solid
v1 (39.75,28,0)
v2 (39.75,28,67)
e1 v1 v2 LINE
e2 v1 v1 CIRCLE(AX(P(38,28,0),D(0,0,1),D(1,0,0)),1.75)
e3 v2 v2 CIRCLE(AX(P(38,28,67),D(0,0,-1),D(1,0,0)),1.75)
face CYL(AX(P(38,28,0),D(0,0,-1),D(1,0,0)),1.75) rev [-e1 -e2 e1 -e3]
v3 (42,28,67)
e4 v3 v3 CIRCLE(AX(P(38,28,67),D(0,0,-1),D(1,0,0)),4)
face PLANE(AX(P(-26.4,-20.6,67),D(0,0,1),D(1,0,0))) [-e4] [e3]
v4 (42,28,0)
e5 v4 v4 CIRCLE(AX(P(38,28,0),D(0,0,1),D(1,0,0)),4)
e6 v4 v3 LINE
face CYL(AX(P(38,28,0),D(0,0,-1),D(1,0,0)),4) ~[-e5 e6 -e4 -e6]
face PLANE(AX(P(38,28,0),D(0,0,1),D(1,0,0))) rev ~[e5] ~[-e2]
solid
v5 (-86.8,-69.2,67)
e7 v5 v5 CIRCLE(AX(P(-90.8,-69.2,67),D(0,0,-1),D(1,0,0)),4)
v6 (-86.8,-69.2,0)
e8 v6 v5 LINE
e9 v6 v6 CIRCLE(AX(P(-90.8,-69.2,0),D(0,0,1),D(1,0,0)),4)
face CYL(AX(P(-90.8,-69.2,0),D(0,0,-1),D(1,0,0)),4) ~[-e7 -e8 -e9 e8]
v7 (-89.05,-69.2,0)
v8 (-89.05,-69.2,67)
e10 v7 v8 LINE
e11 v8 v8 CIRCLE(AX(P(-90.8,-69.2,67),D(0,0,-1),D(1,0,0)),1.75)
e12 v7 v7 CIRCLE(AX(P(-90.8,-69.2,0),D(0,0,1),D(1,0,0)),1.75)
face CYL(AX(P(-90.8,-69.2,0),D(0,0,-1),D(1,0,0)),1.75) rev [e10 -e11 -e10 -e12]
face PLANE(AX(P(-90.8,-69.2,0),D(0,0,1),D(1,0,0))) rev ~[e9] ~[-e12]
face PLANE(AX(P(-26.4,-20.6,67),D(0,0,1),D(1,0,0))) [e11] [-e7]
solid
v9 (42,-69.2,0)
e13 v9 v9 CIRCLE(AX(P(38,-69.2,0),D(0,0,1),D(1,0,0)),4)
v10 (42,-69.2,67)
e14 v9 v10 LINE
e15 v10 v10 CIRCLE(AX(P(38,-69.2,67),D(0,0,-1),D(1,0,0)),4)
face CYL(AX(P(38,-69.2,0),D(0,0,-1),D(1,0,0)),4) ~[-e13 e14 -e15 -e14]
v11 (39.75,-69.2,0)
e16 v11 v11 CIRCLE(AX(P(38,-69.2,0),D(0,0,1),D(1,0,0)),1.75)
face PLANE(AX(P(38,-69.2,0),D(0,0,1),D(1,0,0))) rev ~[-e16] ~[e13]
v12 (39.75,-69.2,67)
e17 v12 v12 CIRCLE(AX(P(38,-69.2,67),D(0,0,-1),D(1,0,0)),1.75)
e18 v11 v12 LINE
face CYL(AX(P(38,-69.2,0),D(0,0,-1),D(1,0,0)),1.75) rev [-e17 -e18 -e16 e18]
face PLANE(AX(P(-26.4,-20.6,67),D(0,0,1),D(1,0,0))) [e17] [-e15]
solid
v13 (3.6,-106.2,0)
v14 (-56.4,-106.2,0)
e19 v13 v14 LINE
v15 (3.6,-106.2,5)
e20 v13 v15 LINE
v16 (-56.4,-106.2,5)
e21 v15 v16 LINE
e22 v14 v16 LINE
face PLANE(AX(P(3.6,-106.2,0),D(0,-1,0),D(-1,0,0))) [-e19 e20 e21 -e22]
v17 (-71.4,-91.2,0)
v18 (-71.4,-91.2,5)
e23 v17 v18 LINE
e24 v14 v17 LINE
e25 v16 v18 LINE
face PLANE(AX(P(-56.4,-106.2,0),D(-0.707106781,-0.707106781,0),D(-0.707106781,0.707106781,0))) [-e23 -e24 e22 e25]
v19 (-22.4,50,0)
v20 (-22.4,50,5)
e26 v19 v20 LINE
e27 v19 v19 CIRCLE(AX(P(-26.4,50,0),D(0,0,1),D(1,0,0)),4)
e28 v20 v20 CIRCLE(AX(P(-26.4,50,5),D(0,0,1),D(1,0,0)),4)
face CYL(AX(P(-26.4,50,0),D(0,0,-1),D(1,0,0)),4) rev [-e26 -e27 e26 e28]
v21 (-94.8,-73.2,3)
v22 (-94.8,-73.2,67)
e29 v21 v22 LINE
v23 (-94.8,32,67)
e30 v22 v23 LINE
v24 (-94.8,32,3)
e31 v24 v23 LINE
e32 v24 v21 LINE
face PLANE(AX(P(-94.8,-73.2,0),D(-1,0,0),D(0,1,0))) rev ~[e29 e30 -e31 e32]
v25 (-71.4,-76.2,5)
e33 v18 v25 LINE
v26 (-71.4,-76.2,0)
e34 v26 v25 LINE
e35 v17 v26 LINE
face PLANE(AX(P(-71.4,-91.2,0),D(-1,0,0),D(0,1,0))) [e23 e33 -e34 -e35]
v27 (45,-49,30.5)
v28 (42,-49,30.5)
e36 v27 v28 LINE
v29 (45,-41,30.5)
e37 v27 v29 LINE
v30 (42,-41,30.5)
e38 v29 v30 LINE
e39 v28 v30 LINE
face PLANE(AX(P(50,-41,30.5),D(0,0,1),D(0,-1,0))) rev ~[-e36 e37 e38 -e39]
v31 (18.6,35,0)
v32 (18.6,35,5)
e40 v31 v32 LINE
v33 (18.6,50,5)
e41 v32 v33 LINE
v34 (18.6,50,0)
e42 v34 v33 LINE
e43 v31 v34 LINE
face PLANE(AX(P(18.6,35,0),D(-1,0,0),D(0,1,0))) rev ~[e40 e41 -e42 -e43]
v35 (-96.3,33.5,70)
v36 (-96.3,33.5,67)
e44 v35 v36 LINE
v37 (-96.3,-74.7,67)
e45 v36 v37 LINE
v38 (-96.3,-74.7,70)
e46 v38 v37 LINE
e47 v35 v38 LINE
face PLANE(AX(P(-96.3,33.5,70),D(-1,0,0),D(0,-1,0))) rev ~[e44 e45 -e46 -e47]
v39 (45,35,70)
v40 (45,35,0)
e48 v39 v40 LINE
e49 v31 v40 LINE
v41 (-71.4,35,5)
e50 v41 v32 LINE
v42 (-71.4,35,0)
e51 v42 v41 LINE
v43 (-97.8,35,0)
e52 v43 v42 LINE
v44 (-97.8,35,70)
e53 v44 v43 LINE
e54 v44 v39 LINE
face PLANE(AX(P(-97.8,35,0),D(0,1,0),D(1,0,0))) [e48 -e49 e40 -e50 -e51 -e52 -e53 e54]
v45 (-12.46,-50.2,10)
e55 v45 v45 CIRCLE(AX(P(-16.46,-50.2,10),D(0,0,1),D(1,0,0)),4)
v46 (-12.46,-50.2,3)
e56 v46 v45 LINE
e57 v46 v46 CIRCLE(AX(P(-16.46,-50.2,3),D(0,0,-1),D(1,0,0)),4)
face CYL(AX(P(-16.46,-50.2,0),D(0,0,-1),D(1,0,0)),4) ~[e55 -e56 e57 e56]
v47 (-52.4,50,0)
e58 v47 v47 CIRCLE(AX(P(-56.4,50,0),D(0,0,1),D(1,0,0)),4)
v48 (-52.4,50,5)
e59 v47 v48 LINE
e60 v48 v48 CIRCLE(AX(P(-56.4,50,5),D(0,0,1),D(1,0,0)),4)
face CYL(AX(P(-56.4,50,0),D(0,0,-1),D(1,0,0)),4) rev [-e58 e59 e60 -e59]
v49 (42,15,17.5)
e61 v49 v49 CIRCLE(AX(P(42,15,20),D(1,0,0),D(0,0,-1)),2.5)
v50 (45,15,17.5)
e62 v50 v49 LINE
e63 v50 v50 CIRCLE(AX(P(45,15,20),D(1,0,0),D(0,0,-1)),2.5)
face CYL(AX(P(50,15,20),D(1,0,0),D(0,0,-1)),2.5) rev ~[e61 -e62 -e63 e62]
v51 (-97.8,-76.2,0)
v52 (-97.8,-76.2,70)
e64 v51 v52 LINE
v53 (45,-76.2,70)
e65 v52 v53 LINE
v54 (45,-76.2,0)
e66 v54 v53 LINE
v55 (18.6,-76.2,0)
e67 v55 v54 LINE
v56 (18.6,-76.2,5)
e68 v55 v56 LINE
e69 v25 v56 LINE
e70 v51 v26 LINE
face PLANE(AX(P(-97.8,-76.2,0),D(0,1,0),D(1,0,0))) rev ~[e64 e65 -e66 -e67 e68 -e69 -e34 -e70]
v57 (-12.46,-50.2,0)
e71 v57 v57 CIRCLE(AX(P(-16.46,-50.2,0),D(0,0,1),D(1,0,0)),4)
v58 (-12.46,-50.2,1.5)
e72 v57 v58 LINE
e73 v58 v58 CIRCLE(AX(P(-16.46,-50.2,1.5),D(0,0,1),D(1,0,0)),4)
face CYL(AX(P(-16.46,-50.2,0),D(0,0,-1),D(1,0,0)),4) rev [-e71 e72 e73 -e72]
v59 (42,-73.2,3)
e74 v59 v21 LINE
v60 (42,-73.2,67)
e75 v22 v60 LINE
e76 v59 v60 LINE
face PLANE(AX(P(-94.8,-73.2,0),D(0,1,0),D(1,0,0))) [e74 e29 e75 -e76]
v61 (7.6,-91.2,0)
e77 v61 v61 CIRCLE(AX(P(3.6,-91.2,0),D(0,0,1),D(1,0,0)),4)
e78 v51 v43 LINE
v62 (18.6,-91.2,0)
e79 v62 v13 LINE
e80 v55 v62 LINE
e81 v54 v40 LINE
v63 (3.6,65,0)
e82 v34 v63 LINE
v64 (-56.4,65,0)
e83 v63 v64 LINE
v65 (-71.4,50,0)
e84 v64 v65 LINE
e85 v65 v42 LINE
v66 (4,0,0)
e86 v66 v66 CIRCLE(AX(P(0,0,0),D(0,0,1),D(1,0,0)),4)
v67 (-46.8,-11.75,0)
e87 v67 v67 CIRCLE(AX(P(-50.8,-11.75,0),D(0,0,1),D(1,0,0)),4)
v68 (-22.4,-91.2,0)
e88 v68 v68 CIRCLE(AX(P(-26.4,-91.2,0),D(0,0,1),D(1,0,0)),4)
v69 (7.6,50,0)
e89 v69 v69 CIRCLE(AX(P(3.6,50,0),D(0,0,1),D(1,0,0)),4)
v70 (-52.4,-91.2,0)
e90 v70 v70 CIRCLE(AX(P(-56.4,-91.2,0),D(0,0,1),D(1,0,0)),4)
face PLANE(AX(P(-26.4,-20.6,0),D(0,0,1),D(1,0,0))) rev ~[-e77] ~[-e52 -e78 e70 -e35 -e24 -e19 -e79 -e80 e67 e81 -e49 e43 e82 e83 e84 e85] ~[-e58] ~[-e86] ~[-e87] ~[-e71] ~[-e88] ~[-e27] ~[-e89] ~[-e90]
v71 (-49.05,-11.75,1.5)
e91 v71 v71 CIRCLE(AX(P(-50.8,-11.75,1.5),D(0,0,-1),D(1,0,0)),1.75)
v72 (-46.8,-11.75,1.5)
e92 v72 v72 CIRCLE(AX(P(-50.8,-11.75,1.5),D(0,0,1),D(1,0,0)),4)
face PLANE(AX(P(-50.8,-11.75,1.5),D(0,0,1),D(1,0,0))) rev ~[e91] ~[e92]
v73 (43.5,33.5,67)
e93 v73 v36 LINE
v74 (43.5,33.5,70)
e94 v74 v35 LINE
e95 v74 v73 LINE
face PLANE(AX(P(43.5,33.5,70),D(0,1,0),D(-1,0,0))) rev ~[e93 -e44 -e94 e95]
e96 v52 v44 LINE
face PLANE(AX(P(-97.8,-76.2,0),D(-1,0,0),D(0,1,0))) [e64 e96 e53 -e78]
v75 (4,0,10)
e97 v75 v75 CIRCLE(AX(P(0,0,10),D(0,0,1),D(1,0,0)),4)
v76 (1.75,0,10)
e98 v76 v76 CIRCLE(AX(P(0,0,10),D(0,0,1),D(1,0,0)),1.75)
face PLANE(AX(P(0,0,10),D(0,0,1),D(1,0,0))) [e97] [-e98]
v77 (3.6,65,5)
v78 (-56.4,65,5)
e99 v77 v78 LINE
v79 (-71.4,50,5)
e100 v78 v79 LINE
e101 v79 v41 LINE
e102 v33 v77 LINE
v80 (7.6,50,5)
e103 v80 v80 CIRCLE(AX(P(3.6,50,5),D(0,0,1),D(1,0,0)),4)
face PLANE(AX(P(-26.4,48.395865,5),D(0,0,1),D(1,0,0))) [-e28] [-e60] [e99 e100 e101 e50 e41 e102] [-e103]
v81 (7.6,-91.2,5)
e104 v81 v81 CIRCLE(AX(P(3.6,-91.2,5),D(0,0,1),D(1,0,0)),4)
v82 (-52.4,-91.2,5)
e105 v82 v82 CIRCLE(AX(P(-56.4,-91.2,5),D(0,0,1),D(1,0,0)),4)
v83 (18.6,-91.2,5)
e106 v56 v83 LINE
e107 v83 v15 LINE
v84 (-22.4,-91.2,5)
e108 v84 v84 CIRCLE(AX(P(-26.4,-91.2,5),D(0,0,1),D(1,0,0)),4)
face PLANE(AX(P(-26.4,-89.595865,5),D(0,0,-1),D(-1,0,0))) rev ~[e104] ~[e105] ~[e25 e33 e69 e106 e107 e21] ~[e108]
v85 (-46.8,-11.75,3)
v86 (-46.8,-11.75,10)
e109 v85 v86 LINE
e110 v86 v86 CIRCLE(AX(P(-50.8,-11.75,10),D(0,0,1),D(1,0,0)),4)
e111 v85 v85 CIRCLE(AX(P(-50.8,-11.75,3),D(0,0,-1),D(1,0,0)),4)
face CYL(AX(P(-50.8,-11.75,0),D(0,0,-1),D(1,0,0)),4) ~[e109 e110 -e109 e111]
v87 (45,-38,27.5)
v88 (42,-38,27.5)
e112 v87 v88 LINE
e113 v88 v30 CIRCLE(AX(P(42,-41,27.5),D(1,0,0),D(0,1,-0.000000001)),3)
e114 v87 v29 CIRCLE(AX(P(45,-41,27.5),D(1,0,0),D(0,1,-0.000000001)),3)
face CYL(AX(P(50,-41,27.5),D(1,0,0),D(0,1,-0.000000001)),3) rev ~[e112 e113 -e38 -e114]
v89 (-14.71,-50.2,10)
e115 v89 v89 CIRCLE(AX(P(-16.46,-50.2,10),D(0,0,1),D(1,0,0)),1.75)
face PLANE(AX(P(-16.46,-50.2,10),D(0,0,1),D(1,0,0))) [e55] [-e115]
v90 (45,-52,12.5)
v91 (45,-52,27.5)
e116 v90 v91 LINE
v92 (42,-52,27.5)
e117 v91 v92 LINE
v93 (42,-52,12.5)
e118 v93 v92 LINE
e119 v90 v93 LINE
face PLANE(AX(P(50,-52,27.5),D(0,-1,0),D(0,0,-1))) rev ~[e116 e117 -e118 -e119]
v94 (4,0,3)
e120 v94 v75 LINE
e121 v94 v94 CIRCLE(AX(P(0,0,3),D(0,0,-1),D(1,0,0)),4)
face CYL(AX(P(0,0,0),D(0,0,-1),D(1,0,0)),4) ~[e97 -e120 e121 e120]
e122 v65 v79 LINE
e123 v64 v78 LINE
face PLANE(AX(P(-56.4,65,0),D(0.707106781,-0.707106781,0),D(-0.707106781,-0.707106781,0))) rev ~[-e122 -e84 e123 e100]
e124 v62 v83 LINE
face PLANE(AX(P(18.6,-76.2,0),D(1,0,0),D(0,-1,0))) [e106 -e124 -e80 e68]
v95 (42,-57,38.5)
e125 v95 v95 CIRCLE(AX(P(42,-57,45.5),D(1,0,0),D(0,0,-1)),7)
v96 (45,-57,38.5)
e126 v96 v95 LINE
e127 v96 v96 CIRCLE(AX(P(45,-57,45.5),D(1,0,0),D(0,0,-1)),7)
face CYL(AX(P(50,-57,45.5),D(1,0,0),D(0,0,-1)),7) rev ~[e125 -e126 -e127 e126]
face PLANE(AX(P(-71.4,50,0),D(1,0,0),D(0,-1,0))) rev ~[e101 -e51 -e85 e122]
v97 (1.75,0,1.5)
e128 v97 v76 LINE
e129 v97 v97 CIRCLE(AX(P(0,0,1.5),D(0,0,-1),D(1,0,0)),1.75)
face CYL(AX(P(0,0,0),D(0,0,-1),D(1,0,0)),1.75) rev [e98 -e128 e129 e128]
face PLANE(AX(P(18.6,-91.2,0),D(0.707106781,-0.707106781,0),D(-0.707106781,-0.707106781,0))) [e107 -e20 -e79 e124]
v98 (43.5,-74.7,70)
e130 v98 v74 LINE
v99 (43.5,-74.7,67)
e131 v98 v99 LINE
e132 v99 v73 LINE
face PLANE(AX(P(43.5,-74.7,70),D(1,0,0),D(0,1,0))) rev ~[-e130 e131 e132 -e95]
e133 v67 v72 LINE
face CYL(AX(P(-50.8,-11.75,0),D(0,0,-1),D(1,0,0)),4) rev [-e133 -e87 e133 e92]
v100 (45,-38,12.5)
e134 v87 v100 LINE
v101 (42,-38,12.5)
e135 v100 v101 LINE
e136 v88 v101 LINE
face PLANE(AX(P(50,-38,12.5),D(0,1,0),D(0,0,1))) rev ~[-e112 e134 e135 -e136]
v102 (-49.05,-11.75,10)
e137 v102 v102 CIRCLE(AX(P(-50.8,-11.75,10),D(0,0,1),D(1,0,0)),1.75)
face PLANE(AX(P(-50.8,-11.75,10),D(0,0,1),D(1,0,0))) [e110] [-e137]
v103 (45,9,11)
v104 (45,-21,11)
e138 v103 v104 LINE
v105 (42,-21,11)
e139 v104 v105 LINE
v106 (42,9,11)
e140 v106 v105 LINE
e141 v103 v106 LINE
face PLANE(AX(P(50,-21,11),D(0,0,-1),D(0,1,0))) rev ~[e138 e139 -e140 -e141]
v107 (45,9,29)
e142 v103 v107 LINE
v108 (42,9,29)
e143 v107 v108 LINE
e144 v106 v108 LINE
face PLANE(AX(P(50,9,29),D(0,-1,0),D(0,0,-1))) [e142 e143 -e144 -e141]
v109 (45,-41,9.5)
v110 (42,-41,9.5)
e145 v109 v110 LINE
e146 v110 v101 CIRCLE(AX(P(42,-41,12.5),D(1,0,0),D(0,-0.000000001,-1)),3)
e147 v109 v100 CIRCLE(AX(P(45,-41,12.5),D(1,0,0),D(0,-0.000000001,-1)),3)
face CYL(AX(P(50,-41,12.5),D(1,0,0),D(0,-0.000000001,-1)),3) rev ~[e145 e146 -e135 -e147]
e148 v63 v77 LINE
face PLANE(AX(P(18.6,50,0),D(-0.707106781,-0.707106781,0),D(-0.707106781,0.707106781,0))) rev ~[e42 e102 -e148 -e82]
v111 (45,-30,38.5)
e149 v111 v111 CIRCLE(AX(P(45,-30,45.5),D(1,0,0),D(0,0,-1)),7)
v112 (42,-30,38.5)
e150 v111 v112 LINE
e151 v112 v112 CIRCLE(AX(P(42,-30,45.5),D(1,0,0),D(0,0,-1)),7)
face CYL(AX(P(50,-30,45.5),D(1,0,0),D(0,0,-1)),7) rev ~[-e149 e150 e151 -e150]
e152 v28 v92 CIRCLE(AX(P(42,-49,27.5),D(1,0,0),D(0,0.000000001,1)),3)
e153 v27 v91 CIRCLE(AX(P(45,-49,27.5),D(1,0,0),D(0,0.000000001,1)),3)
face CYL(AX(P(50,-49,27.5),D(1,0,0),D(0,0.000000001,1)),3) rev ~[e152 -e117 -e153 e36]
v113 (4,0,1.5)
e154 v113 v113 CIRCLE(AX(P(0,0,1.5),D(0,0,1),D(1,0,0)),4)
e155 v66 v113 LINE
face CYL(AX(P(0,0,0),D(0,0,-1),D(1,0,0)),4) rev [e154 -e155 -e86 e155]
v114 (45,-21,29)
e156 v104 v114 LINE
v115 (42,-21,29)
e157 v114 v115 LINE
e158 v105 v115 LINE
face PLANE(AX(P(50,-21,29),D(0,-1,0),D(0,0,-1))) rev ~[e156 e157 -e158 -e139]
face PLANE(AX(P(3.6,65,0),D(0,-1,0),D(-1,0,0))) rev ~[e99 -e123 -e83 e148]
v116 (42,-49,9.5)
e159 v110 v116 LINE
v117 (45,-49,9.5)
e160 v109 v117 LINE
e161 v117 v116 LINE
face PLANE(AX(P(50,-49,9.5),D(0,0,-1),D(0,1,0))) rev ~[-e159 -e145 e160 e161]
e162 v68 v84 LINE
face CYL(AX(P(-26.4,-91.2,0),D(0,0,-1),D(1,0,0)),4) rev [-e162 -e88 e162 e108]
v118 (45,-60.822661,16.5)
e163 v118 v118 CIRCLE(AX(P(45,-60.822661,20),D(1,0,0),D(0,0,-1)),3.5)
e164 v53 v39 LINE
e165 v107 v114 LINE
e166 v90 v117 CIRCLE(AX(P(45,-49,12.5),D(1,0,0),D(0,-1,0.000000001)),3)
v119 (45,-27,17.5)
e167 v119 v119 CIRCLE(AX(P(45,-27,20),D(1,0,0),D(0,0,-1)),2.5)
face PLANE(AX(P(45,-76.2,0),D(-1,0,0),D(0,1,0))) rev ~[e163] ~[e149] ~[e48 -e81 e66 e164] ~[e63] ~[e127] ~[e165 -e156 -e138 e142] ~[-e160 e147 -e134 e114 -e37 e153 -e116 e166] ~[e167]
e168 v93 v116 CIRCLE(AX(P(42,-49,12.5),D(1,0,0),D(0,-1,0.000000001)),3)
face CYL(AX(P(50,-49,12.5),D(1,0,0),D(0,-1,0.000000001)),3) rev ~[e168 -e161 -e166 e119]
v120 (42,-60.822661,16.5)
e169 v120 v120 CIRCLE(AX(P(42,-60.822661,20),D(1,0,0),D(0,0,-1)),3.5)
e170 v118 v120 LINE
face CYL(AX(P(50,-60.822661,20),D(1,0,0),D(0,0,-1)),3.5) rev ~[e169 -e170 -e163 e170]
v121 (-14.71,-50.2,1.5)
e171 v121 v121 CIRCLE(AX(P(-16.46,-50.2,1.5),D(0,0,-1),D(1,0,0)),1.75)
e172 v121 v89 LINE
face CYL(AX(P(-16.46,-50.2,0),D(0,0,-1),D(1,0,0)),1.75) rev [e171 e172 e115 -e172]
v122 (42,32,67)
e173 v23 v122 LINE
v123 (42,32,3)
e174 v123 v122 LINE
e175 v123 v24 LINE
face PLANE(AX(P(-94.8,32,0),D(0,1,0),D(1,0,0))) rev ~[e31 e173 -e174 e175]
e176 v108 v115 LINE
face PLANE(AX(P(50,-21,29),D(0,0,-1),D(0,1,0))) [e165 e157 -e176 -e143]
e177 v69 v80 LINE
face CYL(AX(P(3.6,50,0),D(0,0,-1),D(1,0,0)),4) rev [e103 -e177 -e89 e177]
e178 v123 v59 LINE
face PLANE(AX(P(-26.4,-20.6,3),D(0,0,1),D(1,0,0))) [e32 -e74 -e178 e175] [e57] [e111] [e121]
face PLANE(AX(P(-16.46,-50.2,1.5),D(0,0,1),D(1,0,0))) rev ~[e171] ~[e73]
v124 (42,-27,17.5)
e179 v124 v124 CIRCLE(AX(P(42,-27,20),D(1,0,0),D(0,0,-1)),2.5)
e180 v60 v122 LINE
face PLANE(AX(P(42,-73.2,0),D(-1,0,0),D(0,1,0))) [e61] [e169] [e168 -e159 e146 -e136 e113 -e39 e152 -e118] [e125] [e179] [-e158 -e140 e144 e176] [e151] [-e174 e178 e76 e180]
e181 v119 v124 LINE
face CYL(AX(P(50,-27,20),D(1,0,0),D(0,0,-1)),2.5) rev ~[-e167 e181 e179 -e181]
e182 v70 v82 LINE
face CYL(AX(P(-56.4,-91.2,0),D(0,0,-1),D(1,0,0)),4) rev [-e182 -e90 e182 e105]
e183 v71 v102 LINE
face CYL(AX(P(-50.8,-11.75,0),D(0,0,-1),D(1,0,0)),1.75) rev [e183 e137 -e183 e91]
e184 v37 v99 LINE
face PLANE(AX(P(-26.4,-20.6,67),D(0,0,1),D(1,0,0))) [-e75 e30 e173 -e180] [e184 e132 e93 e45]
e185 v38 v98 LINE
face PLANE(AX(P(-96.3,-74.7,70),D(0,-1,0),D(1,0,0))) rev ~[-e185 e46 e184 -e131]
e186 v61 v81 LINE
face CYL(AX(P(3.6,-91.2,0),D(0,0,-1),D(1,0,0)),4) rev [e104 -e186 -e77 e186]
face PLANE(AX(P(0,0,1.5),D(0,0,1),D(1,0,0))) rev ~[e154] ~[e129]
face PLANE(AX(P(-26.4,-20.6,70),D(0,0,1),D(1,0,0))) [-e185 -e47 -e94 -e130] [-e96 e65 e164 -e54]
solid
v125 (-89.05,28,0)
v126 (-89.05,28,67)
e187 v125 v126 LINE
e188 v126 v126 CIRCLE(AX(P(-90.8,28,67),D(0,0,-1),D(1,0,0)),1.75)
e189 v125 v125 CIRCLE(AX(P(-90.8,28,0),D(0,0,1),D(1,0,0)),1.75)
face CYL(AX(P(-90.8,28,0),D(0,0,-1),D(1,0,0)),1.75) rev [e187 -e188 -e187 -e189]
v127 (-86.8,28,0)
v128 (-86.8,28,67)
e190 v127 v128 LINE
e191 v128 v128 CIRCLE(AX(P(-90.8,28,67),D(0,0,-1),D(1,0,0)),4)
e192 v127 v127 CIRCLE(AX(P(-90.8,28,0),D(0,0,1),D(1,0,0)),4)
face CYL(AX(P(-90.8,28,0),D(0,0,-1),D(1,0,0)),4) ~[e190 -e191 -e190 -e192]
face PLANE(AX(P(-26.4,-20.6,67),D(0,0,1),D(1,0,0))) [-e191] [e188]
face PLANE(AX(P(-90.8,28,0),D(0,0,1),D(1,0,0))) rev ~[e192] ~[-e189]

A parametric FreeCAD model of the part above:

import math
import FreeCAD as App
import Part
import Sketcher

V = App.Vector

doc = App.newDocument("Part")
params = doc.addObject("Spreadsheet::Sheet", "Params")
for row, (alias, value) in enumerate([
    ("sketch1_diameter", "3.5 mm"),
    ("sketch1_width", "142.8 mm"),
    ("sketch1_height", "111.2 mm"),
    ("pad1_length", "3 mm"),
    ("sketch2_diameter", "8 mm"),
    ("sketch2_diameter2", "3.5 mm"),
    ("pad2_length", "70 mm"),
    ("sketch3_diameter", "8 mm"),
    ("sketch3_diameter2", "3.5 mm"),
    ("pad3_length", "70 mm"),
    ("sketch4_diameter", "8 mm"),
    ("sketch4_diameter2", "3.5 mm"),
    ("pad4_length", "70 mm"),
    ("sketch5_diameter", "8 mm"),
    ("sketch5_diameter2", "3.5 mm"),
    ("pad5_length", "70 mm"),
    ("sketch6_width", "142.8 mm"),
    ("sketch6_width2", "136.8 mm"),
    ("sketch6_height", "111.2 mm"),
    ("sketch6_height2", "105.2 mm"),
    ("pad6_length", "70 mm"),
    ("sketch7_diameter", "8 mm"),
    ("sketch7_diameter2", "3.5 mm"),
    ("pad7_length", "10 mm"),
    ("sketch8_diameter", "8 mm"),
    ("pocket1_length", "1.5 mm"),
    ("sketch9_diameter", "5 mm"),
    ("sketch9_diameter2", "14 mm"),
    ("sketch9_diameter3", "7 mm"),
    ("sketch9_radius", "3 mm"),
    ("sketch9_width", "8 mm"),
    ("pocket2_length", "37.5 mm"),
    ("sketch10_width", "139.8 mm"),
    ("sketch10_height", "108.2 mm"),
    ("pad8_length", "3 mm"),
    ("sketch11_diameter", "8 mm"),
    ("sketch11_width", "90 mm"),
    ("sketch11_width2", "60 mm"),
    ("sketch11_height", "15 mm"),
    ("pad9_length", "5 mm"),
], start=1):
    params.set(f"A{row}", alias)
    params.set(f"B{row}", "=" + value)
    params.setAlias(f"B{row}", alias)

body = doc.addObject("PartDesign::Body", "Body")

sketch1 = body.newObject("Sketcher::SketchObject", "Sketch")
sketch1.AttachmentSupport = (doc.getObject("XY_Plane"), [""])
sketch1.MapMode = "FlatFace"
sketch1.addGeometry([
    Part.LineSegment(V(-97.8, 35, 0), V(-97.8, -76.2, 0)),
    Part.LineSegment(V(-97.8, -76.2, 0), V(45, -76.2, 0)),
    Part.LineSegment(V(45, -76.2, 0), V(45, 35, 0)),
    Part.LineSegment(V(45, 35, 0), V(-97.8, 35, 0)),
    Part.Circle(V(-16.46, -50.2, 0), V(0, 0, 1), 1.75),
    Part.Circle(V(-50.8, -11.75, 0), V(0, 0, 1), 1.75),
    Part.Circle(V(0, 0, 0), V(0, 0, 1), 1.75),
], False)
sketch1.addConstraint([
    Sketcher.Constraint("Coincident", 0, 2, 1, 1),
    Sketcher.Constraint("Coincident", 1, 2, 2, 1),
    Sketcher.Constraint("Coincident", 2, 2, 3, 1),
    Sketcher.Constraint("Coincident", 3, 2, 0, 1),
    Sketcher.Constraint("Vertical", 0),
    Sketcher.Constraint("Horizontal", 1),
    Sketcher.Constraint("Vertical", 2),
    Sketcher.Constraint("Horizontal", 3),
    Sketcher.Constraint("Coincident", 6, 3, -1, 1),
    Sketcher.Constraint("Equal", 4, 5),
    Sketcher.Constraint("Equal", 5, 6),
    Sketcher.Constraint("Diameter", 4, 3.5),
    Sketcher.Constraint("DistanceX", 1, 1, 1, 2, 142.8),
    Sketcher.Constraint("DistanceY", 0, 2, 0, 1, 111.2),
    Sketcher.Constraint("DistanceX", -1, 1, 1, 2, 45.0),
    Sketcher.Constraint("DistanceY", -1, 1, 2, 2, 35.0),
    Sketcher.Constraint("DistanceX", 0, 2, 5, 3, 47.0),
    Sketcher.Constraint("DistanceY", 0, 2, 4, 3, 26.0),
    Sketcher.Constraint("DistanceX", 4, 3, -1, 1, 16.46),
    Sketcher.Constraint("DistanceY", 5, 3, -1, 1, 11.75),
])
sketch1.setExpression("Constraints[11]", "Params.sketch1_diameter")
sketch1.setExpression("Constraints[12]", "Params.sketch1_width")
sketch1.setExpression("Constraints[13]", "Params.sketch1_height")
pad1 = body.newObject("PartDesign::Pad", "Pad")
pad1.Profile = sketch1
pad1.setExpression("Length", "Params.pad1_length")
body2 = doc.addObject("PartDesign::Body", "Body001")

sketch2 = body2.newObject("Sketcher::SketchObject", "Sketch001")
sketch2.AttachmentSupport = (doc.getObject("XY_Plane001"), [""])
sketch2.MapMode = "FlatFace"
sketch2.addGeometry([
    Part.Circle(V(-90.8, -69.2, 0), V(0, 0, 1), 4),
    Part.Circle(V(-90.8, -69.2, 0), V(0, 0, 1), 1.75),
], False)
sketch2.addConstraint([
    Sketcher.Constraint("Coincident", 1, 3, 0, 3),
    Sketcher.Constraint("Diameter", 0, 8.0),
    Sketcher.Constraint("Diameter", 1, 3.5),
    Sketcher.Constraint("DistanceX", 0, 3, -1, 1, 90.8),
    Sketcher.Constraint("DistanceY", 0, 3, -1, 1, 69.2),
])
sketch2.setExpression("Constraints[1]", "Params.sketch2_diameter")
sketch2.setExpression("Constraints[2]", "Params.sketch2_diameter2")
pad2 = body2.newObject("PartDesign::Pad", "Pad001")
pad2.Profile = sketch2
pad2.setExpression("Length", "Params.pad2_length")
body3 = doc.addObject("PartDesign::Body", "Body002")

sketch3 = body3.newObject("Sketcher::SketchObject", "Sketch002")
sketch3.AttachmentSupport = (doc.getObject("XY_Plane002"), [""])
sketch3.MapMode = "FlatFace"
sketch3.addGeometry([
    Part.Circle(V(38, -69.2, 0), V(0, 0, 1), 4),
    Part.Circle(V(38, -69.2, 0), V(0, 0, 1), 1.75),
], False)
sketch3.addConstraint([
    Sketcher.Constraint("Coincident", 1, 3, 0, 3),
    Sketcher.Constraint("Diameter", 0, 8.0),
    Sketcher.Constraint("Diameter", 1, 3.5),
    Sketcher.Constraint("DistanceX", -1, 1, 0, 3, 38.0),
    Sketcher.Constraint("DistanceY", 0, 3, -1, 1, 69.2),
])
sketch3.setExpression("Constraints[1]", "Params.sketch3_diameter")
sketch3.setExpression("Constraints[2]", "Params.sketch3_diameter2")
pad3 = body3.newObject("PartDesign::Pad", "Pad002")
pad3.Profile = sketch3
pad3.setExpression("Length", "Params.pad3_length")
body4 = doc.addObject("PartDesign::Body", "Body003")

sketch4 = body4.newObject("Sketcher::SketchObject", "Sketch003")
sketch4.AttachmentSupport = (doc.getObject("XY_Plane003"), [""])
sketch4.MapMode = "FlatFace"
sketch4.addGeometry([
    Part.Circle(V(38, 28, 0), V(0, 0, 1), 4),
    Part.Circle(V(38, 28, 0), V(0, 0, 1), 1.75),
], False)
sketch4.addConstraint([
    Sketcher.Constraint("Coincident", 1, 3, 0, 3),
    Sketcher.Constraint("Diameter", 0, 8.0),
    Sketcher.Constraint("Diameter", 1, 3.5),
    Sketcher.Constraint("DistanceX", -1, 1, 0, 3, 38.0),
    Sketcher.Constraint("DistanceY", -1, 1, 0, 3, 28.0),
])
sketch4.setExpression("Constraints[1]", "Params.sketch4_diameter")
sketch4.setExpression("Constraints[2]", "Params.sketch4_diameter2")
pad4 = body4.newObject("PartDesign::Pad", "Pad003")
pad4.Profile = sketch4
pad4.setExpression("Length", "Params.pad4_length")
body5 = doc.addObject("PartDesign::Body", "Body004")

sketch5 = body5.newObject("Sketcher::SketchObject", "Sketch004")
sketch5.AttachmentSupport = (doc.getObject("XY_Plane004"), [""])
sketch5.MapMode = "FlatFace"
sketch5.addGeometry([
    Part.Circle(V(-90.8, 28, 0), V(0, 0, 1), 4),
    Part.Circle(V(-90.8, 28, 0), V(0, 0, 1), 1.75),
], False)
sketch5.addConstraint([
    Sketcher.Constraint("Coincident", 1, 3, 0, 3),
    Sketcher.Constraint("Diameter", 0, 8.0),
    Sketcher.Constraint("Diameter", 1, 3.5),
    Sketcher.Constraint("DistanceY", -1, 1, 0, 3, 28.0),
    Sketcher.Constraint("DistanceX", 0, 3, -1, 1, 90.8),
])
sketch5.setExpression("Constraints[1]", "Params.sketch5_diameter")
sketch5.setExpression("Constraints[2]", "Params.sketch5_diameter2")
pad5 = body5.newObject("PartDesign::Pad", "Pad004")
pad5.Profile = sketch5
pad5.setExpression("Length", "Params.pad5_length")
body6 = doc.addObject("PartDesign::Body", "Body005")

sketch6 = body6.newObject("Sketcher::SketchObject", "Sketch005")
sketch6.AttachmentSupport = (doc.getObject("XY_Plane005"), [""])
sketch6.MapMode = "FlatFace"
sketch6.addGeometry([
    Part.LineSegment(V(-97.8, 35, 0), V(-97.8, -76.2, 0)),
    Part.LineSegment(V(-97.8, -76.2, 0), V(45, -76.2, 0)),
    Part.LineSegment(V(45, -76.2, 0), V(45, 35, 0)),
    Part.LineSegment(V(45, 35, 0), V(-97.8, 35, 0)),
    Part.LineSegment(V(42, -73.2, 0), V(-94.8, -73.2, 0)),
    Part.LineSegment(V(-94.8, -73.2, 0), V(-94.8, 32, 0)),
    Part.LineSegment(V(-94.8, 32, 0), V(42, 32, 0)),
    Part.LineSegment(V(42, 32, 0), V(42, -73.2, 0)),
], False)
sketch6.addConstraint([
    Sketcher.Constraint("Coincident", 0, 2, 1, 1),
    Sketcher.Constraint("Coincident", 1, 2, 2, 1),
    Sketcher.Constraint("Coincident", 2, 2, 3, 1),
    Sketcher.Constraint("Coincident", 3, 2, 0, 1),
    Sketcher.Constraint("Coincident", 4, 2, 5, 1),
    Sketcher.Constraint("Coincident", 5, 2, 6, 1),
    Sketcher.Constraint("Coincident", 6, 2, 7, 1),
    Sketcher.Constraint("Coincident", 7, 2, 4, 1),
    Sketcher.Constraint("Vertical", 0),
    Sketcher.Constraint("Horizontal", 1),
    Sketcher.Constraint("Vertical", 2),
    Sketcher.Constraint("Horizontal", 3),
    Sketcher.Constraint("Horizontal", 4),
    Sketcher.Constraint("Vertical", 5),
    Sketcher.Constraint("Horizontal", 6),
    Sketcher.Constraint("Vertical", 7),
    Sketcher.Constraint("DistanceX", 1, 1, 1, 2, 142.8),
    Sketcher.Constraint("DistanceX", 4, 2, 4, 1, 136.8),
    Sketcher.Constraint("DistanceY", 0, 2, 0, 1, 111.2),
    Sketcher.Constraint("DistanceY", 5, 1, 5, 2, 105.2),
    Sketcher.Constraint("DistanceX", -1, 1, 1, 2, 45.0),
    Sketcher.Constraint("DistanceY", -1, 1, 2, 2, 35.0),
    Sketcher.Constraint("DistanceY", -1, 1, 5, 2, 32.0),
    Sketcher.Constraint("DistanceX", -1, 1, 6, 2, 42.0),
])
sketch6.setExpression("Constraints[16]", "Params.sketch6_width")
sketch6.setExpression("Constraints[17]", "Params.sketch6_width2")
sketch6.setExpression("Constraints[18]", "Params.sketch6_height")
sketch6.setExpression("Constraints[19]", "Params.sketch6_height2")
pad6 = body6.newObject("PartDesign::Pad", "Pad005")
pad6.Profile = sketch6
pad6.setExpression("Length", "Params.pad6_length")
doc.recompute()

boolean = body.newObject("PartDesign::Boolean", "Boolean")
boolean.Type = "Fuse"
boolean.addObjects([body6])

sketch7 = body.newObject("Sketcher::SketchObject", "Sketch006")
sketch7.AttachmentSupport = (doc.getObject("XY_Plane"), [""])
sketch7.MapMode = "FlatFace"
sketch7.addGeometry([
    Part.Circle(V(-50.8, -11.75, 0), V(0, 0, 1), 4),
    Part.Circle(V(-50.8, -11.75, 0), V(0, 0, 1), 1.75),
    Part.Circle(V(-16.46, -50.2, 0), V(0, 0, 1), 4),
    Part.Circle(V(-16.46, -50.2, 0), V(0, 0, 1), 1.75),
    Part.Circle(V(0, 0, 0), V(0, 0, 1), 4),
    Part.Circle(V(0, 0, 0), V(0, 0, 1), 1.75),
], False)
sketch7.addConstraint([
    Sketcher.Constraint("Coincident", 4, 3, -1, 1),
    Sketcher.Constraint("Coincident", 5, 3, -1, 1),
    Sketcher.Constraint("Coincident", 1, 3, 0, 3),
    Sketcher.Constraint("Coincident", 3, 3, 2, 3),
    Sketcher.Constraint("Equal", 0, 2),
    Sketcher.Constraint("Equal", 1, 3),
    Sketcher.Constraint("Equal", 2, 4),
    Sketcher.Constraint("Equal", 3, 5),
    Sketcher.Constraint("Diameter", 0, 8.0),
    Sketcher.Constraint("Diameter", 1, 3.5),
    Sketcher.Constraint("DistanceX", 0, 3, -1, 1, 50.8),
    Sketcher.Constraint("DistanceY", 2, 3, -1, 1, 50.2),
    Sketcher.Constraint("DistanceY", 0, 3, -1, 1, 11.75),
    Sketcher.Constraint("DistanceX", 2, 3, -1, 1, 16.46),
])
sketch7.setExpression("Constraints[8]", "Params.sketch7_diameter")
sketch7.setExpression("Constraints[9]", "Params.sketch7_diameter2")
pad7 = body.newObject("PartDesign::Pad", "Pad006")
pad7.Profile = sketch7
pad7.setExpression("Length", "Params.pad7_length")

sketch8 = body.newObject("Sketcher::SketchObject", "Sketch007")
sketch8.AttachmentSupport = (doc.getObject("XY_Plane"), [""])
sketch8.MapMode = "FlatFace"
sketch8.addGeometry([
    Part.Circle(V(0, 0, 0), V(0, 0, 1), 4),
    Part.Circle(V(-16.46, -50.2, 0), V(0, 0, 1), 4),
    Part.Circle(V(-50.8, -11.75, 0), V(0, 0, 1), 4),
], False)
sketch8.addConstraint([
    Sketcher.Constraint("Coincident", 0, 3, -1, 1),
    Sketcher.Constraint("Equal", 0, 1),
    Sketcher.Constraint("Equal", 1, 2),
    Sketcher.Constraint("Diameter", 0, 8.0),
    Sketcher.Constraint("DistanceY", 1, 3, -1, 1, 50.2),
    Sketcher.Constraint("DistanceX", 2, 3, -1, 1, 50.8),
    Sketcher.Constraint("DistanceX", 1, 3, -1, 1, 16.46),
    Sketcher.Constraint("DistanceY", 2, 3, -1, 1, 11.75),
])
sketch8.setExpression("Constraints[3]", "Params.sketch8_diameter")
pocket1 = body.newObject("PartDesign::Pocket", "Pocket")
pocket1.Profile = sketch8
pocket1.setExpression("Length", "Params.pocket1_length")
pocket1.Reversed = True

sketch9 = body.newObject("Sketcher::SketchObject", "Sketch008")
sketch9.AttachmentSupport = (doc.getObject("YZ_Plane"), [""])
sketch9.MapMode = "FlatFace"
sketch9.AttachmentOffset = App.Placement(V(0, 0, 50), App.Rotation())
sketch9.addGeometry([
    Part.Circle(V(15, 20, 0), V(0, 0, 1), 2.5),
    Part.Circle(V(-27, 20, 0), V(0, 0, 1), 2.5),
    Part.Circle(V(-57, 45.5, 0), V(0, 0, 1), 7),
    Part.Circle(V(-30, 45.5, 0), V(0, 0, 1), 7),
    Part.Circle(V(-60.822661, 20, 0), V(0, 0, 1), 3.5),
    Part.LineSegment(V(-38, 12.5, 0), V(-38, 27.5, 0)),
    Part.ArcOfCircle(Part.Circle(V(-41, 27.5, 0), V(0, 0, 1), 3), math.radians(0), math.radians(90)),
    Part.LineSegment(V(-41, 30.5, 0), V(-49, 30.5, 0)),
    Part.ArcOfCircle(Part.Circle(V(-49, 27.5, 0), V(0, 0, 1), 3), math.radians(90), math.radians(180)),
    Part.LineSegment(V(-52, 27.5, 0), V(-52, 12.5, 0)),
    Part.ArcOfCircle(Part.Circle(V(-49, 12.5, 0), V(0, 0, 1), 3), math.radians(180), math.radians(270)),
    Part.LineSegment(V(-49, 9.5, 0), V(-41, 9.5, 0)),
    Part.ArcOfCircle(Part.Circle(V(-41, 12.5, 0), V(0, 0, 1), 3), math.radians(-90), math.radians(0)),
    Part.LineSegment(V(9, 29, 0), V(-21, 29, 0)),
    Part.LineSegment(V(-21, 29, 0), V(-21, 11, 0)),
    Part.LineSegment(V(-21, 11, 0), V(9, 11, 0)),
    Part.LineSegment(V(9, 11, 0), V(9, 29, 0)),
], False)
sketch9.addConstraint([
    Sketcher.Constraint("Tangent", 5, 2, 6, 1),
    Sketcher.Constraint("Tangent", 6, 2, 7, 1),
    Sketcher.Constraint("Tangent", 7, 2, 8, 1),
    Sketcher.Constraint("Tangent", 8, 2, 9, 1),
    Sketcher.Constraint("Tangent", 9, 2, 10, 1),
    Sketcher.Constraint("Tangent", 10, 2, 11, 1),
    Sketcher.Constraint("Tangent", 11, 2, 12, 1),
    Sketcher.Constraint("Tangent", 12, 2, 5, 1),
    Sketcher.Constraint("Coincident", 13, 2, 14, 1),
    Sketcher.Constraint("Coincident", 14, 2, 15, 1),
    Sketcher.Constraint("Coincident", 15, 2, 16, 1),
    Sketcher.Constraint("Coincident", 16, 2, 13, 1),
    Sketcher.Constraint("Vertical", 5),
    Sketcher.Constraint("Horizontal", 7),
    Sketcher.Constraint("Vertical", 9),
    Sketcher.Constraint("Horizontal", 11),
    Sketcher.Constraint("Horizontal", 13),
    Sketcher.Constraint("Vertical", 14),
    Sketcher.Constraint("Horizontal", 15),
    Sketcher.Constraint("Vertical", 16),
    Sketcher.Constraint("Equal", 0, 1),
    Sketcher.Constraint("Equal", 2, 3),
    Sketcher.Constraint("Equal", 6, 8),
    Sketcher.Constraint("Equal", 8, 10),
    Sketcher.Constraint("Equal", 10, 12),
    Sketcher.Constraint("Horizontal", 0, 3, 1, 3),
    Sketcher.Constraint("Horizontal", 2, 3, 3, 3),
    Sketcher.Constraint("Horizontal", 1, 3, 4, 3),
    Sketcher.Constraint("Diameter", 0, 5.0),
    Sketcher.Constraint("Diameter", 2, 14.0),
    Sketcher.Constraint("Diameter", 4, 7.0),
    Sketcher.Constraint("Radius", 6, 3.0),
    Sketcher.Constraint("DistanceX", 7, 2, 7, 1, 8.0),
    Sketcher.Constraint("DistanceX", 13, 2, 13, 1, 30.0),
    Sketcher.Constraint("DistanceY", 5, 1, 5, 2, 15.0),
    Sketcher.Constraint("DistanceY", 14, 2, 14, 1, 18.0),
    Sketcher.Constraint("DistanceX", -1, 1, 0, 3, 15.0),
    Sketcher.Constraint("DistanceY", -1, 1, 0, 3, 20.0),
    Sketcher.Constraint("DistanceX", 1, 3, -1, 1, 27.0),
    Sketcher.Constraint("DistanceX", 2, 3, -1, 1, 57.0),
    Sketcher.Constraint("DistanceX", 3, 3, -1, 1, 30.0),
    Sketcher.Constraint("DistanceX", 6, 3, -1, 1, 41.0),
    Sketcher.Constraint("DistanceX", 13, 2, -1, 1, 21.0),
    Sketcher.Constraint("DistanceY", -1, 1, 13, 2, 29.0),
    Sketcher.Constraint("DistanceY", 6, 3, 3, 3, 18.0),
    Sketcher.Constraint("DistanceY", -1, 1, 2, 3, 45.5),
    Sketcher.Constraint("DistanceX", 4, 3, -1, 1, 60.822661),
])
sketch9.setExpression("Constraints[28]", "Params.sketch9_diameter")
sketch9.setExpression("Constraints[29]", "Params.sketch9_diameter2")
sketch9.setExpression("Constraints[30]", "Params.sketch9_diameter3")
sketch9.setExpression("Constraints[31]", "Params.sketch9_radius")
sketch9.setExpression("Constraints[32]", "Params.sketch9_width")
pocket2 = body.newObject("PartDesign::Pocket", "Pocket001")
pocket2.Profile = sketch9
pocket2.setExpression("Length", "Params.pocket2_length")
body7 = doc.addObject("PartDesign::Body", "Body006")

sketch10 = body7.newObject("Sketcher::SketchObject", "Sketch009")
sketch10.AttachmentSupport = (doc.getObject("XY_Plane006"), [""])
sketch10.MapMode = "FlatFace"
sketch10.AttachmentOffset = App.Placement(V(0, 0, 70), App.Rotation())
sketch10.addGeometry([
    Part.LineSegment(V(43.5, 33.5, 0), V(-96.3, 33.5, 0)),
    Part.LineSegment(V(-96.3, 33.5, 0), V(-96.3, -74.7, 0)),
    Part.LineSegment(V(-96.3, -74.7, 0), V(43.5, -74.7, 0)),
    Part.LineSegment(V(43.5, -74.7, 0), V(43.5, 33.5, 0)),
], False)
sketch10.addConstraint([
    Sketcher.Constraint("Coincident", 0, 2, 1, 1),
    Sketcher.Constraint("Coincident", 1, 2, 2, 1),
    Sketcher.Constraint("Coincident", 2, 2, 3, 1),
    Sketcher.Constraint("Coincident", 3, 2, 0, 1),
    Sketcher.Constraint("Horizontal", 0),
    Sketcher.Constraint("Vertical", 1),
    Sketcher.Constraint("Horizontal", 2),
    Sketcher.Constraint("Vertical", 3),
    Sketcher.Constraint("DistanceX", 0, 2, 0, 1, 139.8),
    Sketcher.Constraint("DistanceY", 1, 2, 1, 1, 108.2),
    Sketcher.Constraint("DistanceX", 0, 2, -1, 1, 96.3),
    Sketcher.Constraint("DistanceY", -1, 1, 0, 2, 33.5),
])
sketch10.setExpression("Constraints[8]", "Params.sketch10_width")
sketch10.setExpression("Constraints[9]", "Params.sketch10_height")
pad8 = body7.newObject("PartDesign::Pad", "Pad007")
pad8.Profile = sketch10
pad8.setExpression("Length", "Params.pad8_length")
pad8.Reversed = True
doc.recompute()

body8 = doc.addObject("PartDesign::Body", "Body007")
body8.BaseFeature = body7
boolean2 = body.newObject("PartDesign::Boolean", "Boolean001")
boolean2.Type = "Cut"
boolean2.addObjects([body8])
doc.recompute()

sketch11 = body.newObject("Sketcher::SketchObject", "Sketch010")
sketch11.AttachmentSupport = (doc.getObject("XY_Plane"), [""])
sketch11.MapMode = "FlatFace"
sketch11.addGeometry([
    Part.LineSegment(V(18.6, -76.2, 0), V(-71.4, -76.2, 0)),
    Part.LineSegment(V(-71.4, -76.2, 0), V(-71.4, -91.2, 0)),
    Part.LineSegment(V(-71.4, -91.2, 0), V(-56.4, -106.2, 0)),
    Part.LineSegment(V(-56.4, -106.2, 0), V(3.6, -106.2, 0)),
    Part.LineSegment(V(3.6, -106.2, 0), V(18.6, -91.2, 0)),
    Part.LineSegment(V(18.6, -91.2, 0), V(18.6, -76.2, 0)),
    Part.Circle(V(3.6, -91.2, 0), V(0, 0, 1), 4),
    Part.Circle(V(-26.4, -91.2, 0), V(0, 0, 1), 4),
    Part.Circle(V(-56.4, -91.2, 0), V(0, 0, 1), 4),
    Part.LineSegment(V(-56.4, 65, 0), V(-71.4, 50, 0)),
    Part.LineSegment(V(-71.4, 50, 0), V(-71.4, 35, 0)),
    Part.LineSegment(V(-71.4, 35, 0), V(18.6, 35, 0)),
    Part.LineSegment(V(18.6, 35, 0), V(18.6, 50, 0)),
    Part.LineSegment(V(18.6, 50, 0), V(3.6, 65, 0)),
    Part.LineSegment(V(3.6, 65, 0), V(-56.4, 65, 0)),
    Part.Circle(V(-56.4, 50, 0), V(0, 0, 1), 4),
    Part.Circle(V(-26.4, 50, 0), V(0, 0, 1), 4),
    Part.Circle(V(3.6, 50, 0), V(0, 0, 1), 4),
], False)
sketch11.addConstraint([
    Sketcher.Constraint("Coincident", 0, 2, 1, 1),
    Sketcher.Constraint("Coincident", 1, 2, 2, 1),
    Sketcher.Constraint("Coincident", 2, 2, 3, 1),
    Sketcher.Constraint("Coincident", 3, 2, 4, 1),
    Sketcher.Constraint("Coincident", 4, 2, 5, 1),
    Sketcher.Constraint("Coincident", 5, 2, 0, 1),
    Sketcher.Constraint("Coincident", 9, 2, 10, 1),
    Sketcher.Constraint("Coincident", 10, 2, 11, 1),
    Sketcher.Constraint("Coincident", 11, 2, 12, 1),
    Sketcher.Constraint("Coincident", 12, 2, 13, 1),
    Sketcher.Constraint("Coincident", 13, 2, 14, 1),
    Sketcher.Constraint("Coincident", 14, 2, 9, 1),
    Sketcher.Constraint("Horizontal", 0),
    Sketcher.Constraint("Vertical", 1),
    Sketcher.Constraint("Horizontal", 3),
    Sketcher.Constraint("Vertical", 5),
    Sketcher.Constraint("Vertical", 10),
    Sketcher.Constraint("Horizontal", 11),
    Sketcher.Constraint("Vertical", 12),
    Sketcher.Constraint("Horizontal", 14),
    Sketcher.Constraint("Equal", 6, 7),
    Sketcher.Constraint("Equal", 7, 8),
    Sketcher.Constraint("Equal", 8, 15),
    Sketcher.Constraint("Equal", 15, 16),
    Sketcher.Constraint("Equal", 16, 17),
    Sketcher.Constraint("Perpendicular", 2, 4),
    Sketcher.Constraint("Parallel", 4, 9),
    Sketcher.Constraint("Perpendicular", 9, 13),
    Sketcher.Constraint("Horizontal", 6, 3, 7, 3),
    Sketcher.Constraint("Horizontal", 7, 3, 8, 3),
    Sketcher.Constraint("Horizontal", 15, 3, 16, 3),
    Sketcher.Constraint("Horizontal", 16, 3, 17, 3),
    Sketcher.Constraint("Horizontal", 8, 3, 1, 2),
    Sketcher.Constraint("Horizontal", 1, 2, 4, 2),
    Sketcher.Constraint("Horizontal", 17, 3, 9, 2),
    Sketcher.Constraint("Horizontal", 9, 2, 12, 2),
    Sketcher.Constraint("Vertical", 8, 3, 15, 3),
    Sketcher.Constraint("Vertical", 7, 3, 16, 3),
    Sketcher.Constraint("Vertical", 6, 3, 17, 3),
    Sketcher.Constraint("Vertical", 15, 3, 2, 2),
    Sketcher.Constraint("Vertical", 17, 3, 3, 2),
    Sketcher.Constraint("Vertical", 1, 2, 9, 2),
    Sketcher.Constraint("Vertical", 5, 2, 11, 2),
    Sketcher.Constraint("Vertical", 3, 2, 13, 2),
    Sketcher.Constraint("Vertical", 2, 2, 14, 2),
    Sketcher.Constraint("Equal", 5, 10),
    Sketcher.Constraint("Diameter", 6, 8.0),
    Sketcher.Constraint("DistanceX", 0, 2, 0, 1, 90.0),
    Sketcher.Constraint("DistanceX", 3, 1, 3, 2, 60.0),
    Sketcher.Constraint("DistanceY", 1, 2, 1, 1, 15.0),
    Sketcher.Constraint("DistanceY", -1, 1, 15, 3, 50.0),
    Sketcher.Constraint("DistanceX", 7, 3, 6, 3, 30.0),
    Sketcher.Constraint("DistanceX", -1, 1, 6, 3, 3.6),
    Sketcher.Constraint("DistanceY", 6, 3, -1, 1, 91.2),
])
sketch11.setExpression("Constraints[46]", "Params.sketch11_diameter")
sketch11.setExpression("Constraints[47]", "Params.sketch11_width")
sketch11.setExpression("Constraints[48]", "Params.sketch11_width2")
sketch11.setExpression("Constraints[49]", "Params.sketch11_height")
pad9 = body.newObject("PartDesign::Pad", "Pad008")
pad9.Profile = sketch11
pad9.setExpression("Length", "Params.pad9_length")
doc.recompute()

body9 = doc.addObject("PartDesign::Body", "Body008")
body9.BaseFeature = body7
boolean3 = body2.newObject("PartDesign::Boolean", "Boolean002")
boolean3.Type = "Cut"
boolean3.addObjects([body9])
doc.recompute()

body10 = doc.addObject("PartDesign::Body", "Body009")
body10.BaseFeature = body7
boolean4 = body3.newObject("PartDesign::Boolean", "Boolean003")
boolean4.Type = "Cut"
boolean4.addObjects([body10])
doc.recompute()

body11 = doc.addObject("PartDesign::Body", "Body010")
body11.BaseFeature = body7
boolean5 = body4.newObject("PartDesign::Boolean", "Boolean004")
boolean5.Type = "Cut"
boolean5.addObjects([body11])
doc.recompute()

boolean6 = body5.newObject("PartDesign::Boolean", "Boolean005")
boolean6.Type = "Cut"
boolean6.addObjects([body7])

doc.recompute()
